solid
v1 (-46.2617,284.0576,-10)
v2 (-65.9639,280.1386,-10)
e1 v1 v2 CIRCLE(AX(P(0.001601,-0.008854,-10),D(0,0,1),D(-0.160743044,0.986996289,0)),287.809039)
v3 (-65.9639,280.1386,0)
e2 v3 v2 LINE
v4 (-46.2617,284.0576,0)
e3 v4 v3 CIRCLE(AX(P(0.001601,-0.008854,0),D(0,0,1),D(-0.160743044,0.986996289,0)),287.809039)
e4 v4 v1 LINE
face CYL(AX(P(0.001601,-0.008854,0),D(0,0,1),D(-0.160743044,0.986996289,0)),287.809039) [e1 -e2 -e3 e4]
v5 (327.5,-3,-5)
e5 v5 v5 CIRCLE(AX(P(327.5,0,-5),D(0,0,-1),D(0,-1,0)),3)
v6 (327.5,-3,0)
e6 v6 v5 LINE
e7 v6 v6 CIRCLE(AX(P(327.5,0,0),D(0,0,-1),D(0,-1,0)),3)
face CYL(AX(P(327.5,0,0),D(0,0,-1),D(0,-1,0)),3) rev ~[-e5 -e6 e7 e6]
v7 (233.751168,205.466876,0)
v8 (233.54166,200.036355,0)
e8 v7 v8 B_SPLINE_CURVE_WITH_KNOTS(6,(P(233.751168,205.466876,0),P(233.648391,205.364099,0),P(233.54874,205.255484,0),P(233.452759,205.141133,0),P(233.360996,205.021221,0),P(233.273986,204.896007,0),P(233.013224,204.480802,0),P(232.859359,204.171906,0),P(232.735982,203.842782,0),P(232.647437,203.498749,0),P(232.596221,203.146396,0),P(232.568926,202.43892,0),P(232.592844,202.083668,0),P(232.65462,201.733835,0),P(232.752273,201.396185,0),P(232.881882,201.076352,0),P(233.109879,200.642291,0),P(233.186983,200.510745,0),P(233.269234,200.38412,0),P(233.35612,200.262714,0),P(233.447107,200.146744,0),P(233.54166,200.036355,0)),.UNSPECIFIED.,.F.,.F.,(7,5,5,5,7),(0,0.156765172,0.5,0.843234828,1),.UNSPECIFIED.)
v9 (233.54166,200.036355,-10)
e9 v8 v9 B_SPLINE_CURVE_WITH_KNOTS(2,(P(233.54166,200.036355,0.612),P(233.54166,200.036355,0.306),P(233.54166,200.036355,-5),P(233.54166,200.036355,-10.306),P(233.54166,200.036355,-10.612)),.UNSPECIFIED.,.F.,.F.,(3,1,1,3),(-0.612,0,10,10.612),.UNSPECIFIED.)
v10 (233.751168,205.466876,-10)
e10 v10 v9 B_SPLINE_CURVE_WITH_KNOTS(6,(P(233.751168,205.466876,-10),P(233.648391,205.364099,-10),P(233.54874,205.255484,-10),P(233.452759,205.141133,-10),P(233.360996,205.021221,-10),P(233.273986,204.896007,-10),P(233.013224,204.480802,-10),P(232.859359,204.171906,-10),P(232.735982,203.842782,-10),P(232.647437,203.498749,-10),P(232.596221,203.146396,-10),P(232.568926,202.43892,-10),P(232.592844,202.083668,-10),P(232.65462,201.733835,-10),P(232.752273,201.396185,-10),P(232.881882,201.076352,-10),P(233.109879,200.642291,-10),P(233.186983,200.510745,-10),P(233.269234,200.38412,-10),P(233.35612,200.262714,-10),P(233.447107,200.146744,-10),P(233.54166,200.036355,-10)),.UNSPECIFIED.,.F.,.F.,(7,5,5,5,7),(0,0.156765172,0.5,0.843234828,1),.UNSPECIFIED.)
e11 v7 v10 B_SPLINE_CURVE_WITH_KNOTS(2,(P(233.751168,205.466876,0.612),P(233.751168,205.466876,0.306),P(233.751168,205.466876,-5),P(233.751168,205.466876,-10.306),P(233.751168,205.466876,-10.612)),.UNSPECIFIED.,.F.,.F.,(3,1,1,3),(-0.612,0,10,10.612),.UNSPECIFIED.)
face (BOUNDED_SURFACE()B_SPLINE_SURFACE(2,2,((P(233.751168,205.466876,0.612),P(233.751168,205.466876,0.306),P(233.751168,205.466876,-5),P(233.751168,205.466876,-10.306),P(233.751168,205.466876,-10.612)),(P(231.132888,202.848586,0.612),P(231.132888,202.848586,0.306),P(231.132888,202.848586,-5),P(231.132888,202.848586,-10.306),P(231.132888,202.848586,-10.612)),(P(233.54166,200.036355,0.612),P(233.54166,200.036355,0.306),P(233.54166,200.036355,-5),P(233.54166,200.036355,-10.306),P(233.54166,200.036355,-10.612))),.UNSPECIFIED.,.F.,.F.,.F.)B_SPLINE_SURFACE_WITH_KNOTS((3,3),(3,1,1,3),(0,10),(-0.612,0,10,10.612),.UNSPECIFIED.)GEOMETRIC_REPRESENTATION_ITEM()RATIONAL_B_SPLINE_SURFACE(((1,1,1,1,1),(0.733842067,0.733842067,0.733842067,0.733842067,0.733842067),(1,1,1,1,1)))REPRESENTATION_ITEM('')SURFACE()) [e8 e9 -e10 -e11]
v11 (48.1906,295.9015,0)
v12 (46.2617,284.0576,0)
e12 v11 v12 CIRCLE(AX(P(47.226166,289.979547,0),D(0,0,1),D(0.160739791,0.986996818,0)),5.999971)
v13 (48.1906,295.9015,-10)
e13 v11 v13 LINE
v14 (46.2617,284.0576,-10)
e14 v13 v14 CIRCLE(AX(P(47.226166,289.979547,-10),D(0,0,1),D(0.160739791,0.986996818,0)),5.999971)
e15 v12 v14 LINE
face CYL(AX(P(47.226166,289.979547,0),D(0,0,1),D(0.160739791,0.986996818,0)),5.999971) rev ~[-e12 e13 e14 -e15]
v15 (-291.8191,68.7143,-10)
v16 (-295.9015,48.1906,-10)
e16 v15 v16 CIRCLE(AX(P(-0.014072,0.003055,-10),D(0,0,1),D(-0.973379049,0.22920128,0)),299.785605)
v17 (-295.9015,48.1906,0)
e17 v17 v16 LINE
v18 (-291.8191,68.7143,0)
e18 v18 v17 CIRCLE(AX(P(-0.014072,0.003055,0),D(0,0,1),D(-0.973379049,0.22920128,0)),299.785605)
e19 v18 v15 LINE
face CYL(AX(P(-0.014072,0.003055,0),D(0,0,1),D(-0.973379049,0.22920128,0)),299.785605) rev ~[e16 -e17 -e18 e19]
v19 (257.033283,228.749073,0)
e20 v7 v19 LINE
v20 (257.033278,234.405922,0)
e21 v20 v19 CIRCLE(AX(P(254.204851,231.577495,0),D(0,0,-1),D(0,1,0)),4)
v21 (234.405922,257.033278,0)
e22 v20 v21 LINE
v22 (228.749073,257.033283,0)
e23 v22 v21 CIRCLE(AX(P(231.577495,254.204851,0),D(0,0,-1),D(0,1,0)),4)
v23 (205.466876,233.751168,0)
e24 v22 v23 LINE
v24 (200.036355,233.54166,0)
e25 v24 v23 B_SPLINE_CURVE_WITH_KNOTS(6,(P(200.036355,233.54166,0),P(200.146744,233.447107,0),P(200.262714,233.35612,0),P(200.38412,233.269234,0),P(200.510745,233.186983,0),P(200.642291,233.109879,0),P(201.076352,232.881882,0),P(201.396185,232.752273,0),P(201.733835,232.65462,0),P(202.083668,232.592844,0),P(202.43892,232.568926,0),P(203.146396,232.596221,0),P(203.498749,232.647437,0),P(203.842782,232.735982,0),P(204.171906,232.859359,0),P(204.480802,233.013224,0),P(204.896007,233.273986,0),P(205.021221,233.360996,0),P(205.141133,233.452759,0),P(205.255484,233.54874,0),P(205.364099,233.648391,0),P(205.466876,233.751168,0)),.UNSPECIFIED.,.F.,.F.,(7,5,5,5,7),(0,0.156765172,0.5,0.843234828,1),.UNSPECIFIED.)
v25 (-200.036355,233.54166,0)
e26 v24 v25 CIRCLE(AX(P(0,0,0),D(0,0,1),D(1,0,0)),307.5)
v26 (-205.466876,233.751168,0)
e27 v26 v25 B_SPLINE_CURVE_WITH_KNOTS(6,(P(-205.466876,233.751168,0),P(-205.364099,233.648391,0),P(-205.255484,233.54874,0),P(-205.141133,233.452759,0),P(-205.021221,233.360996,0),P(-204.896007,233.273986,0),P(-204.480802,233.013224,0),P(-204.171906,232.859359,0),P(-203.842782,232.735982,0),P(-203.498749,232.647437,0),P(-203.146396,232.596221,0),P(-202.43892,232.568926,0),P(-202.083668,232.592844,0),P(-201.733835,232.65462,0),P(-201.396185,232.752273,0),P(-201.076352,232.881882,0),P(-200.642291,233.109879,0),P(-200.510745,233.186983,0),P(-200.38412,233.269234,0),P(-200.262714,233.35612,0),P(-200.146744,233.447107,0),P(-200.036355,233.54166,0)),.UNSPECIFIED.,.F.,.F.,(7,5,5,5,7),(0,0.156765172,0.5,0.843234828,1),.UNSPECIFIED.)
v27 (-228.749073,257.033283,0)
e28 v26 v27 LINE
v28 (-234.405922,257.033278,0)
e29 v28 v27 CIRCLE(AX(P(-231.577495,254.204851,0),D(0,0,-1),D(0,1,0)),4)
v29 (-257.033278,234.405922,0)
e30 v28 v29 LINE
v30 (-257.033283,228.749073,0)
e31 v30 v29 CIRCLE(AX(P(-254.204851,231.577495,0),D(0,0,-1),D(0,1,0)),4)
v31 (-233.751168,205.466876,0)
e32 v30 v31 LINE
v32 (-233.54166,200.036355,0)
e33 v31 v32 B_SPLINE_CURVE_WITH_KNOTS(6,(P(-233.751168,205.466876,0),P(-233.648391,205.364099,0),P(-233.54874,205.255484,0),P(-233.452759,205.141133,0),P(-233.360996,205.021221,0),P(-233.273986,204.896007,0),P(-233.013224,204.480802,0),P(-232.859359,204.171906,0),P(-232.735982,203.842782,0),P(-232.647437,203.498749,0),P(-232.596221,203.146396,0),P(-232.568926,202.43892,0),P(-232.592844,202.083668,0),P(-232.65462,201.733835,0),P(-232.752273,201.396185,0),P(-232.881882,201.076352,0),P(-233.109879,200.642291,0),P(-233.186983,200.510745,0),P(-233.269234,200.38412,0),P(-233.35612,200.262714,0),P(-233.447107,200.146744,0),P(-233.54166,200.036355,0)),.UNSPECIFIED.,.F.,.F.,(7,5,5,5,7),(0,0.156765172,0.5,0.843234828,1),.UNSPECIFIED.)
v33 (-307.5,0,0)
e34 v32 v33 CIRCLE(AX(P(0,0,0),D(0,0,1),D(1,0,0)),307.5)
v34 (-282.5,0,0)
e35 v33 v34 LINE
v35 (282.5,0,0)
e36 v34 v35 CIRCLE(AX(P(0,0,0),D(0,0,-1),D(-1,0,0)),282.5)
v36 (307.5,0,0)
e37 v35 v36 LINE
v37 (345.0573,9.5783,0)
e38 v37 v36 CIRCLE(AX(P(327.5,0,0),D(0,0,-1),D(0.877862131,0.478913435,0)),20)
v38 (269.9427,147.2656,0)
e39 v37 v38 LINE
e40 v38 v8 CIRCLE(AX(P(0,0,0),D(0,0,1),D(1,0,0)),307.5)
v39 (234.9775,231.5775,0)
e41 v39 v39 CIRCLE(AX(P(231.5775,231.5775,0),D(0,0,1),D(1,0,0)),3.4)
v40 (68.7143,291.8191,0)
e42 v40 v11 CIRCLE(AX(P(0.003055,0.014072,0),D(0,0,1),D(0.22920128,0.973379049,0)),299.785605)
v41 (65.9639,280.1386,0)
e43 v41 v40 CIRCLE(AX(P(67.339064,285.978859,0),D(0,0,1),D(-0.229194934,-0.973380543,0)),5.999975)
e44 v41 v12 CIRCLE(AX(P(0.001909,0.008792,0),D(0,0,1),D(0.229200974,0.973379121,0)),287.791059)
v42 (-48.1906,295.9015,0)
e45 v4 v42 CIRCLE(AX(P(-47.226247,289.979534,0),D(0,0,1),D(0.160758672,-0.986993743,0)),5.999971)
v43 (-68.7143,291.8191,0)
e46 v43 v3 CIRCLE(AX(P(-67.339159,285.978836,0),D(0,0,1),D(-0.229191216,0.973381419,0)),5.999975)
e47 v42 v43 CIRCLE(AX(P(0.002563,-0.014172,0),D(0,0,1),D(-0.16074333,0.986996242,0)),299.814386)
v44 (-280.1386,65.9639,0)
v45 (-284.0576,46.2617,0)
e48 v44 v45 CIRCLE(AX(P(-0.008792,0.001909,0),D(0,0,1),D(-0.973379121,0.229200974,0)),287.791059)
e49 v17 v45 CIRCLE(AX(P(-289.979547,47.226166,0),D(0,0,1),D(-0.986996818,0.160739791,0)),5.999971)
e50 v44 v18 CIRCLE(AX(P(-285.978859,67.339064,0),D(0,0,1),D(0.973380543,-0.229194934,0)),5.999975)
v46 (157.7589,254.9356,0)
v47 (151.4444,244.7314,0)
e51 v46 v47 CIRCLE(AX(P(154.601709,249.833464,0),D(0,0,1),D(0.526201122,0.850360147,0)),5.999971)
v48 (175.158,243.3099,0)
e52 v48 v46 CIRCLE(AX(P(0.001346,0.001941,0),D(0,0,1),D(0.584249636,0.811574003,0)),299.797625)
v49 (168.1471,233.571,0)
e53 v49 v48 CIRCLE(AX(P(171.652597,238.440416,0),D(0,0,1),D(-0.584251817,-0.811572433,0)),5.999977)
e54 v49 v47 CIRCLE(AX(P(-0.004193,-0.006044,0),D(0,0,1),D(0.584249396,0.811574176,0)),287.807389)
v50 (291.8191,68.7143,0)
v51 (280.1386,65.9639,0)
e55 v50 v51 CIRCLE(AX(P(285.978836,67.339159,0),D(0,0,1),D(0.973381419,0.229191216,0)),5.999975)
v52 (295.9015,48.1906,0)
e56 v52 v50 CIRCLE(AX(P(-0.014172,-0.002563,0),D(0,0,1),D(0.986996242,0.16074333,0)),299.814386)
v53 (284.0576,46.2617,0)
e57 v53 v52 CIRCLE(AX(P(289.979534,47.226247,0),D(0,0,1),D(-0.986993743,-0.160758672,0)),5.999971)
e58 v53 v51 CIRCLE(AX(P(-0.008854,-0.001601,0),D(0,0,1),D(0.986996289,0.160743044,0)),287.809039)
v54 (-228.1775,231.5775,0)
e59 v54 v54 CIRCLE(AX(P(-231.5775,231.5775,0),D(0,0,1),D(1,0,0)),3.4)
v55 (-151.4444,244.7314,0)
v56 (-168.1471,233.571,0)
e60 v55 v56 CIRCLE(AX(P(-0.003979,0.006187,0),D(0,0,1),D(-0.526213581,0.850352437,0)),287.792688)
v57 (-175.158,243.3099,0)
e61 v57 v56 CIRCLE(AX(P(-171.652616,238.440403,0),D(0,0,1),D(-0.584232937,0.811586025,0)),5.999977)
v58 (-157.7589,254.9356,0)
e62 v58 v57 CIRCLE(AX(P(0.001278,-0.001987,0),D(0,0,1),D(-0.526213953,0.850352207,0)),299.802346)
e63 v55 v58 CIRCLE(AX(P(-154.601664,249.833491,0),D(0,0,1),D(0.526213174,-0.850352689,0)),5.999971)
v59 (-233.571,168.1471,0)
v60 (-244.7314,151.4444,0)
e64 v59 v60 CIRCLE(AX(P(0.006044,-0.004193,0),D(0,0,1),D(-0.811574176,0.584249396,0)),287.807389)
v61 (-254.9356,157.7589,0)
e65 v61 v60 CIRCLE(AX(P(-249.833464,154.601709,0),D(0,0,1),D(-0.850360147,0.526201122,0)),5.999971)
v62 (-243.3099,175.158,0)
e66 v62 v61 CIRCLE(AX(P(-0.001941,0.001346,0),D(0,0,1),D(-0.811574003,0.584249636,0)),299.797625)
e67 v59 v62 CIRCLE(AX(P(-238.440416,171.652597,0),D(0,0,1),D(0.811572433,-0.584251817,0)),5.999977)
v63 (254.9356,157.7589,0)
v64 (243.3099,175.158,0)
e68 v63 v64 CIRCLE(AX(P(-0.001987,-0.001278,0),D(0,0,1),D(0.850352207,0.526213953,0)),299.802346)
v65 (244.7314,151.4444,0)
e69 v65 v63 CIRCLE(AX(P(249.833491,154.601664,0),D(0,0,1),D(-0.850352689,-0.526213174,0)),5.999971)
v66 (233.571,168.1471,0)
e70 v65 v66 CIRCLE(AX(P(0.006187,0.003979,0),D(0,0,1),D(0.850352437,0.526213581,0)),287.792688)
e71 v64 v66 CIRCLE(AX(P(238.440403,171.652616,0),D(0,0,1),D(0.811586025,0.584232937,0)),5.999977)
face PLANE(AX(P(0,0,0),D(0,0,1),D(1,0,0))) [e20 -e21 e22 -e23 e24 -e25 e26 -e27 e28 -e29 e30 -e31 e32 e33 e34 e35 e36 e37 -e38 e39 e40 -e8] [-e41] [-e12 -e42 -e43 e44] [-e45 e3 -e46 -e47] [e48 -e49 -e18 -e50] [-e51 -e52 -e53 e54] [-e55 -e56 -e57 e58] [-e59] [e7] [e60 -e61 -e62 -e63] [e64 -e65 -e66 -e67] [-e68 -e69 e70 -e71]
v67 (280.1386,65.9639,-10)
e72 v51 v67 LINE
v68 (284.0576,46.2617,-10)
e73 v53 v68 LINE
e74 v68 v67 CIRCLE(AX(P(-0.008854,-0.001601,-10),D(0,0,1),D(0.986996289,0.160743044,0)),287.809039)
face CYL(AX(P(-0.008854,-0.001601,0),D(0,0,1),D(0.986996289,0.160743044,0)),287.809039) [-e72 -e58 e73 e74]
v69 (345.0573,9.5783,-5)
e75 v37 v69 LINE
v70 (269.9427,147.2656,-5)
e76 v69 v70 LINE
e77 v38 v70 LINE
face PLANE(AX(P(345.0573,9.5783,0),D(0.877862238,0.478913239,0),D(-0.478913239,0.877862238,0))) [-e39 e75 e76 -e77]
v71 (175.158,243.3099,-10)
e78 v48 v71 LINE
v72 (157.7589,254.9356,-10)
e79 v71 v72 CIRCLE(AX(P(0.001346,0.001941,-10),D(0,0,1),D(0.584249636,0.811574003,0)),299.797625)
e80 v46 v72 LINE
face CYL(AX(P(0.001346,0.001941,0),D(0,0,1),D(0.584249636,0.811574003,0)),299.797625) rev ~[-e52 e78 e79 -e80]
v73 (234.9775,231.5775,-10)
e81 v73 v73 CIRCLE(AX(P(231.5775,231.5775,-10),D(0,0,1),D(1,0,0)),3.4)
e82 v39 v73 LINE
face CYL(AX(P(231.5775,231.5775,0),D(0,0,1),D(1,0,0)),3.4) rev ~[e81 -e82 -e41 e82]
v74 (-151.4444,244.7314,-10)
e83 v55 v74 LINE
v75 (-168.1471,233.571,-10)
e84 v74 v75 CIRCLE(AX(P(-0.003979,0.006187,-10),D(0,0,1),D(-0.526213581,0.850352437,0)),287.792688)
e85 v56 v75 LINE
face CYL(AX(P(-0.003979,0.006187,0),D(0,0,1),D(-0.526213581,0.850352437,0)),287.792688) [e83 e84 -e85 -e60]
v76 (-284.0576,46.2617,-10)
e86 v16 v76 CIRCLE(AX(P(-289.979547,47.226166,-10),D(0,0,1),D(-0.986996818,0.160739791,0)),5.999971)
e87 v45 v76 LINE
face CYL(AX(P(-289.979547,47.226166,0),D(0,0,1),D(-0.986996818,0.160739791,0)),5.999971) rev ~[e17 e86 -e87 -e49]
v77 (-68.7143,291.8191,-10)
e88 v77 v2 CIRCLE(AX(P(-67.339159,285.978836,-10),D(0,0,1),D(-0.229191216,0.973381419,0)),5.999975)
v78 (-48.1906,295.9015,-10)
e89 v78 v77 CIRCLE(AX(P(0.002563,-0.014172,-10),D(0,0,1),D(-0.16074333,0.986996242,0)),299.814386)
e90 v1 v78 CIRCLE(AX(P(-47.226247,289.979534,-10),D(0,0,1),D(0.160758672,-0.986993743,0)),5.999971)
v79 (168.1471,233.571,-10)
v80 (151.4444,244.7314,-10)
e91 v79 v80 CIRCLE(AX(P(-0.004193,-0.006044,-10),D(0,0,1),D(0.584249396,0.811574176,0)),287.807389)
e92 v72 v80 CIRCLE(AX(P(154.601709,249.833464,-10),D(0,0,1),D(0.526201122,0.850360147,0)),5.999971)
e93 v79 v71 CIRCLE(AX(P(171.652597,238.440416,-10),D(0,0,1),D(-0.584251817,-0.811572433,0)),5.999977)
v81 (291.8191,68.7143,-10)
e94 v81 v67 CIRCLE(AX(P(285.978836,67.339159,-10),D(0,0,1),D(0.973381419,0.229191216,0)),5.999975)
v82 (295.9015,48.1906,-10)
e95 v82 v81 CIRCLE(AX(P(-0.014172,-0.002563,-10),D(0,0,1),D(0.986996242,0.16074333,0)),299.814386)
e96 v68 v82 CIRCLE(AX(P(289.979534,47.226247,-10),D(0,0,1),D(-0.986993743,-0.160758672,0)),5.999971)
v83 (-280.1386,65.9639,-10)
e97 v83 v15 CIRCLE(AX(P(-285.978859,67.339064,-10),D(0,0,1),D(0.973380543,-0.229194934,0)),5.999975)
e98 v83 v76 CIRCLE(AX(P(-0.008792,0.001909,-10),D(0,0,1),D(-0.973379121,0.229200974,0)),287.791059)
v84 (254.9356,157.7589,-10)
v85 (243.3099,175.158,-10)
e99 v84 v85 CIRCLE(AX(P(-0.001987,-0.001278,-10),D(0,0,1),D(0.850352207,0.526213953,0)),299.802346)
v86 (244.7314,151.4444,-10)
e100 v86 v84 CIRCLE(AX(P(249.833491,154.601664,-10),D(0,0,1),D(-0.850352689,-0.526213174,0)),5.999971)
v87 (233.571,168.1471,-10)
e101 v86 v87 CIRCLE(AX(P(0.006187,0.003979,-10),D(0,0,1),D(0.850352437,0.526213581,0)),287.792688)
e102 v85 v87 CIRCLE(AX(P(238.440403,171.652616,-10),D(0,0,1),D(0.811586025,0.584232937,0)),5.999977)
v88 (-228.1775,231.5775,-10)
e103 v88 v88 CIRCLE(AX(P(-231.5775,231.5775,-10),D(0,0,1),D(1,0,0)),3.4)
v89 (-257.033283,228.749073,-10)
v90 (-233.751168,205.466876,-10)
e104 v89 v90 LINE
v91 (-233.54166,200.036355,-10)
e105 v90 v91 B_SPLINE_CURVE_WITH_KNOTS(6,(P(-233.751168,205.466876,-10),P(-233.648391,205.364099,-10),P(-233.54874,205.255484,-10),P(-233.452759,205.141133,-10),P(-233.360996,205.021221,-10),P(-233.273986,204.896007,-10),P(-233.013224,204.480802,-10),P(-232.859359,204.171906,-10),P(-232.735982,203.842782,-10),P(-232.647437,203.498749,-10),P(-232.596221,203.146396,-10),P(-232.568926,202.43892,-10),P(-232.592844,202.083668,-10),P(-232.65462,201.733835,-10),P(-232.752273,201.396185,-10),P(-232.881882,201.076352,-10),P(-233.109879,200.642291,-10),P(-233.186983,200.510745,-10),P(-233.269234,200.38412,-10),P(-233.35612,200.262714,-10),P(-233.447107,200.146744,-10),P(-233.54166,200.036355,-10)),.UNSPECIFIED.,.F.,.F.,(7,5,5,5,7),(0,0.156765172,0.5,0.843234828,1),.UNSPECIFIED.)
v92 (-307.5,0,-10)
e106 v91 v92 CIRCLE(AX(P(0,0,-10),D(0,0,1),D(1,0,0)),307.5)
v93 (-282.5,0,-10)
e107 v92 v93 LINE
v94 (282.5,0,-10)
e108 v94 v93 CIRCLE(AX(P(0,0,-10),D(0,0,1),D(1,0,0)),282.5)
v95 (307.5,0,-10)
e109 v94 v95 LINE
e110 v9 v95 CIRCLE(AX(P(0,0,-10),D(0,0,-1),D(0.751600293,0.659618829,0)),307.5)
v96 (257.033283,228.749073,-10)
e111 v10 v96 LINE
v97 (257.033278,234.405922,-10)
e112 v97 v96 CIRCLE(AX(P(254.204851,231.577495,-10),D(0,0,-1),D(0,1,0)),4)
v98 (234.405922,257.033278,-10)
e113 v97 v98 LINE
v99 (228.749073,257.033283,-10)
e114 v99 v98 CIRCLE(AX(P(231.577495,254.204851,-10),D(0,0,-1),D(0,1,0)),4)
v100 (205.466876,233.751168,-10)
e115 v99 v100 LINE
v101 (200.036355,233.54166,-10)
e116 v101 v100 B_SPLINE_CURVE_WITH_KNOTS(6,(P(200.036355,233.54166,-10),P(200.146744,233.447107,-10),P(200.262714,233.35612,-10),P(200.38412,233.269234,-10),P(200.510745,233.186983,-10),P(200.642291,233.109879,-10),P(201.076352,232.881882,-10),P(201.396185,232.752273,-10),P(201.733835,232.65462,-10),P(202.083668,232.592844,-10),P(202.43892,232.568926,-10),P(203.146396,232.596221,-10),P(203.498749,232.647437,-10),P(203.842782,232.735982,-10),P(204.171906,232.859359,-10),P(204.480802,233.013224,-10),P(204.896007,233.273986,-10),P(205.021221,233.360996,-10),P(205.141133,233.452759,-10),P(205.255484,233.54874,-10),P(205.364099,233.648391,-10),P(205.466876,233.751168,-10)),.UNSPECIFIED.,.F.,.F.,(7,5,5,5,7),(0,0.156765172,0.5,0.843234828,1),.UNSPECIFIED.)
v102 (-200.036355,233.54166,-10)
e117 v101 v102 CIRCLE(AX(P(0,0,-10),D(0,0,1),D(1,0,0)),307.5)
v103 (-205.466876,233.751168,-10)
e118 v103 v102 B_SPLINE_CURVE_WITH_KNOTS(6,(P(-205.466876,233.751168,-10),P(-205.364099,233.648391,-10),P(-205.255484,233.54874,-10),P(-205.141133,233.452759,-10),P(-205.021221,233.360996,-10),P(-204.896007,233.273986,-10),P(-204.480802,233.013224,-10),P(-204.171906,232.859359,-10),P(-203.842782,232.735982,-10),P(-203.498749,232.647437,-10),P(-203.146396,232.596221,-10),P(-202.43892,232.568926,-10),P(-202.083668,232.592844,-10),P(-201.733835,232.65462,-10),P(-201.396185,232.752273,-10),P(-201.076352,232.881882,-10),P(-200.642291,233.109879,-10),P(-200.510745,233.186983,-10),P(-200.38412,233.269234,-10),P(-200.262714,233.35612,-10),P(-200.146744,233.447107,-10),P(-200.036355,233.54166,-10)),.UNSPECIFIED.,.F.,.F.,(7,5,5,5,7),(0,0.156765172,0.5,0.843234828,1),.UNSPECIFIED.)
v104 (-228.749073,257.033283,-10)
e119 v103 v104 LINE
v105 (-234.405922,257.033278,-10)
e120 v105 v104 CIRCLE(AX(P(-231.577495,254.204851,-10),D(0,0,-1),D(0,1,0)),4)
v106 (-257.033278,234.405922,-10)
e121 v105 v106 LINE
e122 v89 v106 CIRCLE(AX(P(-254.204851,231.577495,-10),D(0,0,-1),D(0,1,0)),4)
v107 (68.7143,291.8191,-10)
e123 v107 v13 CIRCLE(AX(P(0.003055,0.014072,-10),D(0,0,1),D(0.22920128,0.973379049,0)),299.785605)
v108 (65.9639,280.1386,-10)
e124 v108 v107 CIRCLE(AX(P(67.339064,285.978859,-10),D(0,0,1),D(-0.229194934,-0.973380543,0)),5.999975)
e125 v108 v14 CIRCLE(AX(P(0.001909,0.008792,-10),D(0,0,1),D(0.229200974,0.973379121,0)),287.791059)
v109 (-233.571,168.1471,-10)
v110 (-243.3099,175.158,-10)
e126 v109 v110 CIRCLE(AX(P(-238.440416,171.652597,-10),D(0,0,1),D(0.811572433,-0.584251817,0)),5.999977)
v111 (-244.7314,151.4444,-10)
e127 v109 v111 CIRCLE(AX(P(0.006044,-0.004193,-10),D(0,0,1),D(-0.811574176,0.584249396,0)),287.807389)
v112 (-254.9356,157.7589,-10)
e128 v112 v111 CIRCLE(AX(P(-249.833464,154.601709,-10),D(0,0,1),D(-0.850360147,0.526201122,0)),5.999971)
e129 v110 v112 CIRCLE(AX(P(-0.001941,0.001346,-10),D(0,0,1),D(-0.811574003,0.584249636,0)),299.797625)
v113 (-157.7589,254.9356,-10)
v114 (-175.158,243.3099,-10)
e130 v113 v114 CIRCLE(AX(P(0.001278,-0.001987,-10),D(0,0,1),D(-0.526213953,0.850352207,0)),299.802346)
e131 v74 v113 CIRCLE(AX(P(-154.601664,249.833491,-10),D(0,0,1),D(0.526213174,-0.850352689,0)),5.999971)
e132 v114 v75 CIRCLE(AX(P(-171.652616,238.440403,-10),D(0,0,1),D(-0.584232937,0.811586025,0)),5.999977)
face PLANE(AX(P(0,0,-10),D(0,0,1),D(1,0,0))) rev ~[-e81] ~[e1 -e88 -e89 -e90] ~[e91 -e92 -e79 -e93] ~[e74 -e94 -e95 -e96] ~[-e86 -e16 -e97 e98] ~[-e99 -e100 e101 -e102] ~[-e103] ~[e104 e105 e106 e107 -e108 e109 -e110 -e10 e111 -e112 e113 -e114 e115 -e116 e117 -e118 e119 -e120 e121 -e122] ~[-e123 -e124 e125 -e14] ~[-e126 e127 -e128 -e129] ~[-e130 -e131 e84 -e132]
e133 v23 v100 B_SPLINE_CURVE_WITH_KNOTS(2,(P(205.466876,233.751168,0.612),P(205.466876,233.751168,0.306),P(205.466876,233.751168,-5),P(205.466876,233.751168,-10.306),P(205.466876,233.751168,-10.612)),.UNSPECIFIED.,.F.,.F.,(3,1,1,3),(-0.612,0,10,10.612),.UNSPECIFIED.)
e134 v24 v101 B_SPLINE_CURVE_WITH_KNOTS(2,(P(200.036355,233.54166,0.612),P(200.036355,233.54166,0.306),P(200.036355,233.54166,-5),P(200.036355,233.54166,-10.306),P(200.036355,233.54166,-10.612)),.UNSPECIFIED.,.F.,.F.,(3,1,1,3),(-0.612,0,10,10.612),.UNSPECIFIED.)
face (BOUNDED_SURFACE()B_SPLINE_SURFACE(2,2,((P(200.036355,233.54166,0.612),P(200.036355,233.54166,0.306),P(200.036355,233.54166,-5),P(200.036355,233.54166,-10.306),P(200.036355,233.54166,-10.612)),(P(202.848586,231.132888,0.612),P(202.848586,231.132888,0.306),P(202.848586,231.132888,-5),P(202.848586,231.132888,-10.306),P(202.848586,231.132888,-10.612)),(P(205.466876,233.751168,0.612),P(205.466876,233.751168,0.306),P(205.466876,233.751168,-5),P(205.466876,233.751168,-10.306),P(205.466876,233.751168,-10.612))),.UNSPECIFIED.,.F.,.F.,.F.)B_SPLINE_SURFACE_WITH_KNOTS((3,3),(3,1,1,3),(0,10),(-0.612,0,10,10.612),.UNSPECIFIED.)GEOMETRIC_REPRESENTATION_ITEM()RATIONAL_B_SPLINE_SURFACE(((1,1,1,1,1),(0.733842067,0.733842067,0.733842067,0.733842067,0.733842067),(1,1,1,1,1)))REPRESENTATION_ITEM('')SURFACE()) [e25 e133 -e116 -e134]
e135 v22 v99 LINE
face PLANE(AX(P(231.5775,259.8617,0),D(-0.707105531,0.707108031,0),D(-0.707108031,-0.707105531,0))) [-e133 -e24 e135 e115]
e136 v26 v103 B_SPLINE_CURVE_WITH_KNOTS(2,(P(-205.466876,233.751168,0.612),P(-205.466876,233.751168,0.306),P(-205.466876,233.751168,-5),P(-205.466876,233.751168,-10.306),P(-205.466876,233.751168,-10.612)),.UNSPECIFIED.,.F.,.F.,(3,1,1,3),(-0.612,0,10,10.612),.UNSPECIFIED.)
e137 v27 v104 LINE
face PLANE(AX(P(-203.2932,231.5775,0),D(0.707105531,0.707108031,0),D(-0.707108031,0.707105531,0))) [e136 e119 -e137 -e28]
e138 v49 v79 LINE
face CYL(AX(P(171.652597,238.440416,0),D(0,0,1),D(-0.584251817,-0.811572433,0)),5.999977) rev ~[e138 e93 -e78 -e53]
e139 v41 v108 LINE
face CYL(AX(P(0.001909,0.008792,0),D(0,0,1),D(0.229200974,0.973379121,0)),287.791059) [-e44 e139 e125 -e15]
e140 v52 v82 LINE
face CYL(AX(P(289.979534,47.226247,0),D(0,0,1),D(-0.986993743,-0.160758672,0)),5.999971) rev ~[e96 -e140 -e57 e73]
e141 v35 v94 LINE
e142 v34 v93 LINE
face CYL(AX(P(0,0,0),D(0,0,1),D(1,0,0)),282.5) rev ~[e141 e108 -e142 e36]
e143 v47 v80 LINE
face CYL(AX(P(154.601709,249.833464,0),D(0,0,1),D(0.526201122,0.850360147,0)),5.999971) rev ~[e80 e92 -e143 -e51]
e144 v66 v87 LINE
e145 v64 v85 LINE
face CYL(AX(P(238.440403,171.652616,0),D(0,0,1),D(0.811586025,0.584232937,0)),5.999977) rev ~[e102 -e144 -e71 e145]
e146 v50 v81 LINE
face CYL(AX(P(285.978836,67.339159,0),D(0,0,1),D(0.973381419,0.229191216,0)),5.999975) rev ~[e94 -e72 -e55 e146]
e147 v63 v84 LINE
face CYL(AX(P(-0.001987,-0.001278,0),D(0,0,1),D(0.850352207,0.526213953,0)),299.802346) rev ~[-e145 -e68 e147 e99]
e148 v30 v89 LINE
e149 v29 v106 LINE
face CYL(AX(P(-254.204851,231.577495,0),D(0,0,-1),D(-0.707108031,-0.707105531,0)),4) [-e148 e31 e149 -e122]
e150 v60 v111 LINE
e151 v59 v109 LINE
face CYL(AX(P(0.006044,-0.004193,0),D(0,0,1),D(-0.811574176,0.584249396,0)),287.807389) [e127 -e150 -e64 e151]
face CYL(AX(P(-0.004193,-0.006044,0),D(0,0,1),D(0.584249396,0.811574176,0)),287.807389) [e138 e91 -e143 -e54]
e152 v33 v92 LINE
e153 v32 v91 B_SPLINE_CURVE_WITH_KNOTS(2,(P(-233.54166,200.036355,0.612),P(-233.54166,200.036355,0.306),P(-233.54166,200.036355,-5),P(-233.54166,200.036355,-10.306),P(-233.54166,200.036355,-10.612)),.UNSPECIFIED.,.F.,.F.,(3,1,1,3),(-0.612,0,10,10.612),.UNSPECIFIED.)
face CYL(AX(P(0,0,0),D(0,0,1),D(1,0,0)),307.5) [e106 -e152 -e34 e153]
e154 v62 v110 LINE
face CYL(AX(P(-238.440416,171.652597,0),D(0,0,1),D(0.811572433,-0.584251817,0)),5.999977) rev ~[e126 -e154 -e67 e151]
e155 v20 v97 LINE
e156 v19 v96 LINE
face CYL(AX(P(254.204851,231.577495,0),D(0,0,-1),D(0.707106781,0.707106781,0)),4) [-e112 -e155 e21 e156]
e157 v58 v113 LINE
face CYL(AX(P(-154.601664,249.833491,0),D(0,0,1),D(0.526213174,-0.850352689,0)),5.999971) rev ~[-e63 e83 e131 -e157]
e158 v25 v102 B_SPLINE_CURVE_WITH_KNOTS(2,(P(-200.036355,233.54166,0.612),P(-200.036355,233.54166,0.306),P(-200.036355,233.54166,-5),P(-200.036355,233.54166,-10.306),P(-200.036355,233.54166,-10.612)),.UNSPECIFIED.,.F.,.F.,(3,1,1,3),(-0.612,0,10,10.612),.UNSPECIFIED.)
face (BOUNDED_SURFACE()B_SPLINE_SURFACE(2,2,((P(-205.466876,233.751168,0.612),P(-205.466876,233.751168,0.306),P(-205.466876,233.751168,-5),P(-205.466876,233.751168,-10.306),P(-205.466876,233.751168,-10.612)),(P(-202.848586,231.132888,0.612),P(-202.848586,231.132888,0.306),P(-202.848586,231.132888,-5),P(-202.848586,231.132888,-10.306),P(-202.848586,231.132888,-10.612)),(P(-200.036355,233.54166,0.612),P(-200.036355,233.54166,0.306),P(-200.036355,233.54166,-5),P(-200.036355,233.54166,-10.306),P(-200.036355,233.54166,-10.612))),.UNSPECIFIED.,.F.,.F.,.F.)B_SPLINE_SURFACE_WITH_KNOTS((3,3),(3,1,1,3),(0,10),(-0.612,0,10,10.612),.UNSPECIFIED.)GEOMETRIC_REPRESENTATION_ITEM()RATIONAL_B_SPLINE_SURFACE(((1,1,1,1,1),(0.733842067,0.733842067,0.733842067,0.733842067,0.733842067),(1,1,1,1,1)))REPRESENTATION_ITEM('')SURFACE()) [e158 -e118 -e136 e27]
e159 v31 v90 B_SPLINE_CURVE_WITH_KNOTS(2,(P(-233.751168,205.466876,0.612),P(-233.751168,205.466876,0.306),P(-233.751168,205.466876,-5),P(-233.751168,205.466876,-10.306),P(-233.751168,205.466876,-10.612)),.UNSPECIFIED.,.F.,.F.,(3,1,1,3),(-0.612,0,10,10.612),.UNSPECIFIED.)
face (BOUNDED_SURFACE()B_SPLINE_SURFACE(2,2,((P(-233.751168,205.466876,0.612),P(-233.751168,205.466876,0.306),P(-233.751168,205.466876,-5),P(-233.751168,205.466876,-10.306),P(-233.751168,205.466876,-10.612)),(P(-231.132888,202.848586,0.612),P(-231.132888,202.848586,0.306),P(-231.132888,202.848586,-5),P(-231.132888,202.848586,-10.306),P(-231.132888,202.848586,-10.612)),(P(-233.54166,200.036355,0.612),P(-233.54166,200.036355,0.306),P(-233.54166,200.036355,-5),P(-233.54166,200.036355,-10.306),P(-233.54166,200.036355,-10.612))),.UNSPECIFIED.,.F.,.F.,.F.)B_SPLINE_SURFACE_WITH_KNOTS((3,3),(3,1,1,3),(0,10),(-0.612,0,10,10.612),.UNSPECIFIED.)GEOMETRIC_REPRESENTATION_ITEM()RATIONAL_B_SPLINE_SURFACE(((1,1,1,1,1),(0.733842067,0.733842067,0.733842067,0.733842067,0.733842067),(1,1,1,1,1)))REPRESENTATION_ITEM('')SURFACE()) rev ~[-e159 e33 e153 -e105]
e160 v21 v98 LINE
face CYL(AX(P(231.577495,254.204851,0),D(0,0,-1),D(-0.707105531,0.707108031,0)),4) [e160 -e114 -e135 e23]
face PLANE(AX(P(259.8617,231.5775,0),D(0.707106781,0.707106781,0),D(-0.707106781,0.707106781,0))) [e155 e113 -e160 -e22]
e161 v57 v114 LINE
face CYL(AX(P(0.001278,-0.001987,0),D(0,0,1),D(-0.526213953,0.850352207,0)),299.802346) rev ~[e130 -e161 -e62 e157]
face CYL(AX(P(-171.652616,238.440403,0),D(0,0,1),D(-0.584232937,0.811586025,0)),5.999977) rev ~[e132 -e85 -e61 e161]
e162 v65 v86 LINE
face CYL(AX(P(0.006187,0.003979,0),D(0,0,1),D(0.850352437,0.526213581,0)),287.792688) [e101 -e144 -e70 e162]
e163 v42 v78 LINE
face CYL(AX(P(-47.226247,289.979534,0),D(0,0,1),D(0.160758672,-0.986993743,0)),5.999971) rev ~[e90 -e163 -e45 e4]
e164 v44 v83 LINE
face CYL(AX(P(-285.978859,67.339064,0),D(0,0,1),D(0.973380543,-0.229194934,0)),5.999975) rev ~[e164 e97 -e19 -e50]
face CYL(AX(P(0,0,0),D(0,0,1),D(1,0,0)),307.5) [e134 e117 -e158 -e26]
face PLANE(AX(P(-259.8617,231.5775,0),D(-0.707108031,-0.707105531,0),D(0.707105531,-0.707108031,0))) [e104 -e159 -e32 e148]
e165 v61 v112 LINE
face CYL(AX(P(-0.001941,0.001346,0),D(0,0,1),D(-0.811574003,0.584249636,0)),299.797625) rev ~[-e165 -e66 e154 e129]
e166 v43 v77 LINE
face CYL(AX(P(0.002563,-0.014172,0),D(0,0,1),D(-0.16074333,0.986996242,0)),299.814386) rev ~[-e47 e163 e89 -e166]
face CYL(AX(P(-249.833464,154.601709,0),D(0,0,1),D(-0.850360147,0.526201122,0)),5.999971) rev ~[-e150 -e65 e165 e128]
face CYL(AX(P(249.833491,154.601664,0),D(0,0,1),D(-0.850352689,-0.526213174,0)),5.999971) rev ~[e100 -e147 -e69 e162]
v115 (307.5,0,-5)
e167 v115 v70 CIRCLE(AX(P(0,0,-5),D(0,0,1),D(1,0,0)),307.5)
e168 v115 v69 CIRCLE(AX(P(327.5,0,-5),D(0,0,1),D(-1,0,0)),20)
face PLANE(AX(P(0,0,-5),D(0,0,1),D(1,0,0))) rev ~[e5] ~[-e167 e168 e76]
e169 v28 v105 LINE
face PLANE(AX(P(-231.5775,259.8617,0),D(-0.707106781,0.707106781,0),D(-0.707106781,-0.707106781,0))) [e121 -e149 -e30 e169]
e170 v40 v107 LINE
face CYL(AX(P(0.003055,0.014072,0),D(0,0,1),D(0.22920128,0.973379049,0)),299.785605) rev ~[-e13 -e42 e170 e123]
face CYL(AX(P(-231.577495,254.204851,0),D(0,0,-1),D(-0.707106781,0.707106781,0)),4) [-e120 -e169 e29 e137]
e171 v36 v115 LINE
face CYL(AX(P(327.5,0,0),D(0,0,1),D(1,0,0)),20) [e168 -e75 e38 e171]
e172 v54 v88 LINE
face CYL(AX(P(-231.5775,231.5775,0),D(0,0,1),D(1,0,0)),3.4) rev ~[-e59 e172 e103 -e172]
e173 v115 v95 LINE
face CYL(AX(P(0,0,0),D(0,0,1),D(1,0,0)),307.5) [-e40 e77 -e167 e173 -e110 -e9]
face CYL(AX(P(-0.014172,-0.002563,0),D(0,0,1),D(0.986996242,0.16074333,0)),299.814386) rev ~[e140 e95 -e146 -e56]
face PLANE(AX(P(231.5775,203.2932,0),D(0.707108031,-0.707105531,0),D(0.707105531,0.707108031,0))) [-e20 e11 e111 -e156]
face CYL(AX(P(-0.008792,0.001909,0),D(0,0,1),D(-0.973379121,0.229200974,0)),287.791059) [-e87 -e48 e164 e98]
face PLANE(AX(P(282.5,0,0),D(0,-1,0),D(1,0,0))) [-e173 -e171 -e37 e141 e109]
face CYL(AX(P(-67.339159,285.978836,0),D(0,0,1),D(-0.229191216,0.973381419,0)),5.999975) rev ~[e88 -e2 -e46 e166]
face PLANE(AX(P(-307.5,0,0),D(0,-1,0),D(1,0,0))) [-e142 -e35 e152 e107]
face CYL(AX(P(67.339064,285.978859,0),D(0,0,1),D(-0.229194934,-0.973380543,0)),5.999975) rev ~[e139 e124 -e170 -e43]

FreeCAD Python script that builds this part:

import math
import FreeCAD as App
import Part
import Sketcher
from FreeCAD import Vector


def edges_at(feature, points):
    """Names of the edges that pass closest to the given points."""
    edges = feature.Shape.Edges
    near = lambda p: min(range(len(edges)), key=lambda i: edges[i].distToShape(Part.Vertex(*p))[0])
    return sorted({f"Edge{near(p) + 1}" for p in points})

doc = App.newDocument("Part")
body = doc.addObject("PartDesign::Body", "Body")

# Sketch on XY plane
sketch1 = doc.addObject("Sketcher::SketchObject", "Sketch")
body.addObject(sketch1)
sketch1.AttachmentSupport = (doc.XY_Plane, [""])
sketch1.MapMode = "FlatFace"
sketch1.addGeometry(Part.LineSegment(Vector(-259.8617, 231.5775, 0), Vector(-231.5775, 203.2932, 0)), False)
sketch1.addGeometry(Part.LineSegment(Vector(-231.5775, 203.2932, 0), Vector(-231.11709, 202.83279, 0)), False)
sketch1.addGeometry(Part.ArcOfCircle(Part.Circle(Vector(0, 0, 0), Vector(0, 0, 1), 307.5), math.radians(138.729191), math.radians(180)), False)
sketch1.addGeometry(Part.LineSegment(Vector(-307.5, 0, 0), Vector(-282.5, 0, 0)), False)
sketch1.addGeometry(Part.ArcOfCircle(Part.Circle(Vector(0, 0, 0), Vector(0, 0, 1), 282.5), math.radians(0), math.radians(180)), False)
sketch1.addGeometry(Part.LineSegment(Vector(282.5, 0, 0), Vector(307.5, 0, 0)), False)
sketch1.addGeometry(Part.ArcOfCircle(Part.Circle(Vector(0, 0, 0), Vector(0, 0, 1), 307.5), math.radians(0), math.radians(41.270809)), False)
sketch1.addGeometry(Part.LineSegment(Vector(231.11709, 202.83279, 0), Vector(231.5775, 203.2932, 0)), False)
sketch1.addGeometry(Part.LineSegment(Vector(231.5775, 203.2932, 0), Vector(259.8617, 231.5775, 0)), False)
sketch1.addGeometry(Part.LineSegment(Vector(259.8617, 231.5775, 0), Vector(231.5775, 259.8617, 0)), False)
sketch1.addGeometry(Part.LineSegment(Vector(231.5775, 259.8617, 0), Vector(203.2932, 231.5775, 0)), False)
sketch1.addGeometry(Part.LineSegment(Vector(203.2932, 231.5775, 0), Vector(202.83279, 231.11709, 0)), False)
sketch1.addGeometry(Part.ArcOfCircle(Part.Circle(Vector(0, 0, 0), Vector(0, 0, 1), 307.5), math.radians(48.729191), math.radians(131.270809)), False)
sketch1.addGeometry(Part.LineSegment(Vector(-202.83279, 231.11709, 0), Vector(-203.2932, 231.5775, 0)), False)
sketch1.addGeometry(Part.LineSegment(Vector(-203.2932, 231.5775, 0), Vector(-231.5775, 259.8617, 0)), False)
sketch1.addGeometry(Part.LineSegment(Vector(-231.5775, 259.8617, 0), Vector(-259.8617, 231.5775, 0)), False)
sketch1.addGeometry(Part.Circle(Vector(-231.5775, 231.5775, 0), Vector(0, 0, 1), 3.4), False)
sketch1.addGeometry(Part.ArcOfCircle(Part.Circle(Vector(-238.4404, 171.6526, 0), Vector(0, 0, 1), 5.999966), math.radians(-35.75026), math.radians(144.251072)), False)
sketch1.addGeometry(Part.ArcOfCircle(Part.Circle(Vector(0.006044, -0.004193, 0), Vector(0, 0, 1), 287.807389), math.radians(144.250019), math.radians(148.249921)), False)
sketch1.addGeometry(Part.ArcOfCircle(Part.Circle(Vector(-249.8335, 154.6017, 0), Vector(0, 0, 1), 5.999945), math.radians(148.250611), math.radians(328.249799)), False)
sketch1.addGeometry(Part.ArcOfCircle(Part.Circle(Vector(-0.001941, 0.001346, 0), Vector(0, 0, 1), 299.797625), math.radians(144.250002), math.radians(148.25003)), False)
sketch1.addGeometry(Part.ArcOfCircle(Part.Circle(Vector(-0.014072, 0.003055, 0), Vector(0, 0, 1), 299.785605), math.radians(166.749948), math.radians(170.750148)), False)
sketch1.addGeometry(Part.ArcOfCircle(Part.Circle(Vector(-285.9788, 67.3391, 0), Vector(0, 0, 1), 5.999926), math.radians(-13.250144), math.radians(166.750075)), False)
sketch1.addGeometry(Part.ArcOfCircle(Part.Circle(Vector(-0.008792, 0.001909, 0), Vector(0, 0, 1), 287.791059), math.radians(166.749966), math.radians(170.750097)), False)
sketch1.addGeometry(Part.ArcOfCircle(Part.Circle(Vector(-289.9795, 47.2262, 0), Vector(0, 0, 1), 6.000013), math.radians(170.750556), math.radians(350.74946)), False)
sketch1.addGeometry(Part.ArcOfCircle(Part.Circle(Vector(171.6526, 238.4404, 0), Vector(0, 0, 1), 5.999966), math.radians(-125.75026), math.radians(54.251072)), False)
sketch1.addGeometry(Part.ArcOfCircle(Part.Circle(Vector(-0.004193, -0.006044, 0), Vector(0, 0, 1), 287.807389), math.radians(54.250019), math.radians(58.249921)), False)
sketch1.addGeometry(Part.ArcOfCircle(Part.Circle(Vector(154.6017, 249.8335, 0), Vector(0, 0, 1), 5.999945), math.radians(58.250611), math.radians(238.249799)), False)
sketch1.addGeometry(Part.ArcOfCircle(Part.Circle(Vector(0.001346, 0.001941, 0), Vector(0, 0, 1), 299.797625), math.radians(54.250002), math.radians(58.25003)), False)
sketch1.addGeometry(Part.ArcOfCircle(Part.Circle(Vector(0.001278, -0.001987, 0), Vector(0, 0, 1), 299.802346), math.radians(121.750002), math.radians(125.749966)), False)
sketch1.addGeometry(Part.ArcOfCircle(Part.Circle(Vector(-154.6017, 249.8335, 0), Vector(0, 0, 1), 5.999997), math.radians(-58.249799), math.radians(121.749389)), False)
sketch1.addGeometry(Part.ArcOfCircle(Part.Circle(Vector(-0.003979, 0.006187, 0), Vector(0, 0, 1), 287.792688), math.radians(121.749977), math.radians(125.750083)), False)
sketch1.addGeometry(Part.ArcOfCircle(Part.Circle(Vector(-171.6526, 238.4404, 0), Vector(0, 0, 1), 5.999988), math.radians(125.748928), math.radians(305.75026)), False)
sketch1.addGeometry(Part.ArcOfCircle(Part.Circle(Vector(0.002563, -0.014172, 0), Vector(0, 0, 1), 299.814386), math.radians(99.250044), math.radians(103.24986)), False)
sketch1.addGeometry(Part.ArcOfCircle(Part.Circle(Vector(-47.2262, 289.9795, 0), Vector(0, 0, 1), 5.99993), math.radians(-80.74946), math.radians(99.249444)), False)
sketch1.addGeometry(Part.ArcOfCircle(Part.Circle(Vector(0.001601, -0.008854, 0), Vector(0, 0, 1), 287.809039), math.radians(99.250028), math.radians(103.249909)), False)
sketch1.addGeometry(Part.ArcOfCircle(Part.Circle(Vector(-67.3391, 285.9788, 0), Vector(0, 0, 1), 6.000023), math.radians(103.249925), math.radians(283.250144)), False)
sketch1.addGeometry(Part.ArcOfCircle(Part.Circle(Vector(0.003055, 0.014072, 0), Vector(0, 0, 1), 299.785605), math.radians(76.749948), math.radians(80.750148)), False)
sketch1.addGeometry(Part.ArcOfCircle(Part.Circle(Vector(67.3391, 285.9788, 0), Vector(0, 0, 1), 5.999926), math.radians(-103.250144), math.radians(76.750075)), False)
sketch1.addGeometry(Part.ArcOfCircle(Part.Circle(Vector(0.001909, 0.008792, 0), Vector(0, 0, 1), 287.791059), math.radians(76.749966), math.radians(80.750097)), False)
sketch1.addGeometry(Part.ArcOfCircle(Part.Circle(Vector(47.2262, 289.9795, 0), Vector(0, 0, 1), 6.000013), math.radians(80.750556), math.radians(260.74946)), False)
sketch1.addGeometry(Part.ArcOfCircle(Part.Circle(Vector(249.8335, 154.6017, 0), Vector(0, 0, 1), 5.999997), math.radians(-148.249799), math.radians(31.749389)), False)
sketch1.addGeometry(Part.ArcOfCircle(Part.Circle(Vector(0.006187, 0.003979, 0), Vector(0, 0, 1), 287.792688), math.radians(31.749977), math.radians(35.750083)), False)
sketch1.addGeometry(Part.ArcOfCircle(Part.Circle(Vector(238.4404, 171.6526, 0), Vector(0, 0, 1), 5.999988), math.radians(35.748928), math.radians(215.75026)), False)
sketch1.addGeometry(Part.ArcOfCircle(Part.Circle(Vector(-0.001987, -0.001278, 0), Vector(0, 0, 1), 299.802346), math.radians(31.750002), math.radians(35.749966)), False)
sketch1.addGeometry(Part.ArcOfCircle(Part.Circle(Vector(-0.014172, -0.002563, 0), Vector(0, 0, 1), 299.814386), math.radians(9.250044), math.radians(13.24986)), False)
sketch1.addGeometry(Part.ArcOfCircle(Part.Circle(Vector(289.9795, 47.2262, 0), Vector(0, 0, 1), 5.99993), math.radians(-170.74946), math.radians(9.249444)), False)
sketch1.addGeometry(Part.ArcOfCircle(Part.Circle(Vector(-0.008854, -0.001601, 0), Vector(0, 0, 1), 287.809039), math.radians(9.250028), math.radians(13.249909)), False)
sketch1.addGeometry(Part.ArcOfCircle(Part.Circle(Vector(285.9788, 67.3391, 0), Vector(0, 0, 1), 6.000023), math.radians(13.249925), math.radians(193.250144)), False)
sketch1.addGeometry(Part.Circle(Vector(231.5775, 231.5775, 0), Vector(0, 0, 1), 3.4), False)
sketch1.addConstraint(Sketcher.Constraint("Coincident", 0, 2, 1, 1))
sketch1.addConstraint(Sketcher.Constraint("Coincident", 1, 2, 2, 1))
sketch1.addConstraint(Sketcher.Constraint("Coincident", 2, 2, 3, 1))
sketch1.addConstraint(Sketcher.Constraint("Coincident", 3, 2, 4, 2))
sketch1.addConstraint(Sketcher.Constraint("Coincident", 4, 1, 5, 1))
sketch1.addConstraint(Sketcher.Constraint("Coincident", 5, 2, 6, 1))
sketch1.addConstraint(Sketcher.Constraint("Coincident", 6, 2, 7, 1))
sketch1.addConstraint(Sketcher.Constraint("Coincident", 7, 2, 8, 1))
sketch1.addConstraint(Sketcher.Constraint("Coincident", 8, 2, 9, 1))
sketch1.addConstraint(Sketcher.Constraint("Coincident", 9, 2, 10, 1))
sketch1.addConstraint(Sketcher.Constraint("Coincident", 10, 2, 11, 1))
sketch1.addConstraint(Sketcher.Constraint("Coincident", 11, 2, 12, 1))
sketch1.addConstraint(Sketcher.Constraint("Coincident", 12, 2, 13, 1))
sketch1.addConstraint(Sketcher.Constraint("Coincident", 13, 2, 14, 1))
sketch1.addConstraint(Sketcher.Constraint("Coincident", 14, 2, 15, 1))
sketch1.addConstraint(Sketcher.Constraint("Coincident", 15, 2, 0, 1))
sketch1.addConstraint(Sketcher.Constraint("Tangent", 17, 1, 18, 1))
sketch1.addConstraint(Sketcher.Constraint("Tangent", 18, 2, 19, 2))
sketch1.addConstraint(Sketcher.Constraint("Tangent", 19, 1, 20, 2))
sketch1.addConstraint(Sketcher.Constraint("Tangent", 20, 1, 17, 2))
sketch1.addConstraint(Sketcher.Constraint("Tangent", 21, 1, 22, 2))
sketch1.addConstraint(Sketcher.Constraint("Tangent", 22, 1, 23, 1))
sketch1.addConstraint(Sketcher.Constraint("Tangent", 23, 2, 24, 2))
sketch1.addConstraint(Sketcher.Constraint("Tangent", 24, 1, 21, 2))
sketch1.addConstraint(Sketcher.Constraint("Tangent", 25, 1, 26, 1))
sketch1.addConstraint(Sketcher.Constraint("Tangent", 26, 2, 27, 2))
sketch1.addConstraint(Sketcher.Constraint("Tangent", 27, 1, 28, 2))
sketch1.addConstraint(Sketcher.Constraint("Tangent", 28, 1, 25, 2))
sketch1.addConstraint(Sketcher.Constraint("Tangent", 29, 1, 30, 2))
sketch1.addConstraint(Sketcher.Constraint("Tangent", 30, 1, 31, 1))
sketch1.addConstraint(Sketcher.Constraint("Tangent", 31, 2, 32, 2))
sketch1.addConstraint(Sketcher.Constraint("Tangent", 32, 1, 29, 2))
sketch1.addConstraint(Sketcher.Constraint("Tangent", 33, 1, 34, 2))
sketch1.addConstraint(Sketcher.Constraint("Tangent", 34, 1, 35, 1))
sketch1.addConstraint(Sketcher.Constraint("Tangent", 35, 2, 36, 2))
sketch1.addConstraint(Sketcher.Constraint("Tangent", 36, 1, 33, 2))
sketch1.addConstraint(Sketcher.Constraint("Tangent", 37, 1, 38, 2))
sketch1.addConstraint(Sketcher.Constraint("Tangent", 38, 1, 39, 1))
sketch1.addConstraint(Sketcher.Constraint("Tangent", 39, 2, 40, 2))
sketch1.addConstraint(Sketcher.Constraint("Tangent", 40, 1, 37, 2))
sketch1.addConstraint(Sketcher.Constraint("Tangent", 41, 1, 42, 1))
sketch1.addConstraint(Sketcher.Constraint("Tangent", 42, 2, 43, 2))
sketch1.addConstraint(Sketcher.Constraint("Tangent", 43, 1, 44, 2))
sketch1.addConstraint(Sketcher.Constraint("Tangent", 44, 1, 41, 2))
sketch1.addConstraint(Sketcher.Constraint("Tangent", 45, 1, 46, 2))
sketch1.addConstraint(Sketcher.Constraint("Tangent", 46, 1, 47, 1))
sketch1.addConstraint(Sketcher.Constraint("Tangent", 47, 2, 48, 2))
sketch1.addConstraint(Sketcher.Constraint("Tangent", 48, 1, 45, 2))
sketch1.addConstraint(Sketcher.Constraint("Horizontal", 3))
sketch1.addConstraint(Sketcher.Constraint("Horizontal", 5))
sketch1.addConstraint(Sketcher.Constraint("Coincident", 2, 3, -1, 1))
sketch1.addConstraint(Sketcher.Constraint("Coincident", 4, 3, -1, 1))
sketch1.addConstraint(Sketcher.Constraint("Coincident", 6, 3, -1, 1))
sketch1.addConstraint(Sketcher.Constraint("Coincident", 12, 3, -1, 1))
sketch1.addConstraint(Sketcher.Constraint("Equal", 2, 6))
sketch1.addConstraint(Sketcher.Constraint("Equal", 6, 12))
sketch1.addConstraint(Sketcher.Constraint("Equal", 17, 19))
sketch1.addConstraint(Sketcher.Constraint("Equal", 19, 22))
sketch1.addConstraint(Sketcher.Constraint("Equal", 22, 24))
sketch1.addConstraint(Sketcher.Constraint("Equal", 24, 25))
sketch1.addConstraint(Sketcher.Constraint("Equal", 18, 26))
sketch1.addConstraint(Sketcher.Constraint("Equal", 25, 27))
sketch1.addConstraint(Sketcher.Constraint("Equal", 20, 28))
sketch1.addConstraint(Sketcher.Constraint("Equal", 27, 30))
sketch1.addConstraint(Sketcher.Constraint("Equal", 30, 32))
sketch1.addConstraint(Sketcher.Constraint("Equal", 32, 34))
sketch1.addConstraint(Sketcher.Constraint("Equal", 34, 36))
sketch1.addConstraint(Sketcher.Constraint("Equal", 21, 37))
sketch1.addConstraint(Sketcher.Constraint("Equal", 36, 38))
sketch1.addConstraint(Sketcher.Constraint("Equal", 23, 39))
sketch1.addConstraint(Sketcher.Constraint("Equal", 38, 40))
sketch1.addConstraint(Sketcher.Constraint("Equal", 40, 41))
sketch1.addConstraint(Sketcher.Constraint("Equal", 31, 42))
sketch1.addConstraint(Sketcher.Constraint("Equal", 41, 43))
sketch1.addConstraint(Sketcher.Constraint("Equal", 29, 44))
sketch1.addConstraint(Sketcher.Constraint("Equal", 33, 45))
sketch1.addConstraint(Sketcher.Constraint("Equal", 43, 46))
sketch1.addConstraint(Sketcher.Constraint("Equal", 35, 47))
sketch1.addConstraint(Sketcher.Constraint("Equal", 46, 48))
sketch1.addConstraint(Sketcher.Constraint("Equal", 16, 49))
sketch1.addConstraint(Sketcher.Constraint("Symmetric", 27, 3, 30, 3, -2))
sketch1.addConstraint(Sketcher.Constraint("Symmetric", 25, 3, 32, 3, -2))
sketch1.addConstraint(Sketcher.Constraint("Symmetric", 36, 3, 38, 3, -2))
sketch1.addConstraint(Sketcher.Constraint("Symmetric", 34, 3, 40, 3, -2))
sketch1.addConstraint(Sketcher.Constraint("Symmetric", 19, 3, 41, 3, -2))
sketch1.addConstraint(Sketcher.Constraint("Symmetric", 17, 3, 43, 3, -2))
sketch1.addConstraint(Sketcher.Constraint("Symmetric", 24, 3, 46, 3, -2))
sketch1.addConstraint(Sketcher.Constraint("Symmetric", 22, 3, 48, 3, -2))
sketch1.addConstraint(Sketcher.Constraint("Symmetric", 16, 3, 49, 3, -2))
sketch1.addConstraint(Sketcher.Constraint("Symmetric", 0, 2, 7, 2, -2))
sketch1.addConstraint(Sketcher.Constraint("Symmetric", 10, 2, 13, 2, -2))
sketch1.addConstraint(Sketcher.Constraint("Symmetric", 9, 2, 14, 2, -2))
sketch1.addConstraint(Sketcher.Constraint("Symmetric", 8, 2, 15, 2, -2))
sketch1.addConstraint(Sketcher.Constraint("Symmetric", 28, 3, 29, 3, -1))
sketch1.addConstraint(Sketcher.Constraint("Symmetric", 35, 3, 39, 3, -1))
sketch1.addConstraint(Sketcher.Constraint("Symmetric", 18, 3, 42, 3, -1))
sketch1.addConstraint(Sketcher.Constraint("Symmetric", 23, 3, 47, 3, -1))
sketch1.addConstraint(Sketcher.Constraint("PointOnObject", 2, 2, -1))
sketch1.addConstraint(Sketcher.Constraint("PointOnObject", 4, 1, -1))
sketch1.addConstraint(Sketcher.Constraint("Parallel", 0, 1))
sketch1.addConstraint(Sketcher.Constraint("Perpendicular", 1, 7))
sketch1.addConstraint(Sketcher.Constraint("Parallel", 7, 8))
sketch1.addConstraint(Sketcher.Constraint("Perpendicular", 8, 9))
sketch1.addConstraint(Sketcher.Constraint("Perpendicular", 9, 10))
sketch1.addConstraint(Sketcher.Constraint("Parallel", 10, 11))
sketch1.addConstraint(Sketcher.Constraint("Perpendicular", 11, 13))
sketch1.addConstraint(Sketcher.Constraint("Horizontal", 23, 3, 28, 3))
sketch1.addConstraint(Sketcher.Constraint("Horizontal", 49, 3, 8, 2))
sketch1.addConstraint(Sketcher.Constraint("Horizontal", 8, 2, 10, 2))
sketch1.addConstraint(Sketcher.Constraint("Vertical", 20, 3, 44, 3))
sketch1.addConstraint(Sketcher.Constraint("Vertical", 21, 3, 45, 3))
sketch1.addConstraint(Sketcher.Constraint("Vertical", 16, 3, 0, 2))
sketch1.addConstraint(Sketcher.Constraint("Vertical", 7, 2, 9, 2))
sketch1.addConstraint(Sketcher.Constraint("Equal", 7, 11))
sketch1.addConstraint(Sketcher.Constraint("Radius", 17, 6.0))
sketch1.addConstraint(Sketcher.Constraint("Diameter", 16, 6.8))
sketch1.addConstraint(Sketcher.Constraint("Radius", 2, 307.5))
sketch1.addConstraint(Sketcher.Constraint("Radius", 4, 282.5))
sketch1.addConstraint(Sketcher.Constraint("Distance", 0, 40.0))
sketch1.addConstraint(Sketcher.Constraint("Radius", 23, 287.791))
sketch1.addConstraint(Sketcher.Constraint("Radius", 35, 287.809))
sketch1.addConstraint(Sketcher.Constraint("DistanceX", 16, 3, -1, 1, 231.5775))
sketch1.addConstraint(Sketcher.Constraint("Radius", 18, 287.8074))
sketch1.addConstraint(Sketcher.Constraint("Radius", 20, 299.7976))
sketch1.addConstraint(Sketcher.Constraint("Radius", 21, 299.7856))
sketch1.addConstraint(Sketcher.Constraint("DistanceX", 20, 1, -1, 1, 243.31))
sketch1.addConstraint(Sketcher.Constraint("DistanceY", -1, 1, 28, 1, 243.31))
sketch1.addConstraint(Sketcher.Constraint("DistanceY", -1, 1, 22, 3, 67.339))
sketch1.addConstraint(Sketcher.Constraint("DistanceX", 36, 3, -1, 1, 67.339))
sketch1.addConstraint(Sketcher.Constraint("DistanceY", -1, 1, 19, 1, 157.759))
sketch1.addConstraint(Sketcher.Constraint("DistanceX", -1, 1, 27, 1, 157.759))
sketch1.addConstraint(Sketcher.Constraint("DistanceX", 24, 3, -1, 1, 289.9795))
sketch1.addConstraint(Sketcher.Constraint("DistanceX", 34, 3, -1, 1, 47.2262))
pad1 = doc.addObject("PartDesign::Pad", "Pad")
body.addObject(pad1)
pad1.Profile = sketch1
pad1.Length = 10
pad1.Reversed = True
doc.recompute()

fillet = doc.addObject("PartDesign::Fillet", "Fillet")
body.addObject(fillet)
fillet.Base = (pad1, edges_at(pad1, [
    (-231.117, 202.833, -5),
    (-259.862, 231.577, -5),
    (-202.833, 231.117, -5),
    (-231.577, 259.862, -5),
    (231.577, 259.862, -5),
    (259.862, 231.577, -5),
    (202.833, 231.117, -5),
    (231.117, 202.833, -5),
]))
fillet.Radius = 4

# Sketch on XY plane
sketch2 = doc.addObject("Sketcher::SketchObject", "Sketch001")
body.addObject(sketch2)
sketch2.AttachmentSupport = (doc.XY_Plane, [""])
sketch2.MapMode = "FlatFace"
sketch2.addGeometry(Part.LineSegment(Vector(345.0573, 9.5783, 0), Vector(269.9427, 147.2656, 0)), False)
sketch2.addGeometry(Part.ArcOfCircle(Part.Circle(Vector(0, 0, 0), Vector(0, 0, 1), 307.5), math.radians(0), math.radians(28.614406)), False)
sketch2.addGeometry(Part.ArcOfCircle(Part.Circle(Vector(327.5, 0, 0), Vector(0, 0, 1), 20), math.radians(180), math.radians(388.614461)), False)
sketch2.addConstraint(Sketcher.Constraint("Tangent", 0, 2, 1, 2))
sketch2.addConstraint(Sketcher.Constraint("Tangent", 1, 1, 2, 1))
sketch2.addConstraint(Sketcher.Constraint("Tangent", 2, 2, 0, 1))
sketch2.addConstraint(Sketcher.Constraint("Coincident", 1, 3, -1, 1))
sketch2.addConstraint(Sketcher.Constraint("PointOnObject", 2, 3, -1))
sketch2.addConstraint(Sketcher.Constraint("Radius", 2, 20.0))
sketch2.addConstraint(Sketcher.Constraint("Radius", 1, 307.5))
pad2 = doc.addObject("PartDesign::Pad", "Pad001")
body.addObject(pad2)
pad2.Profile = sketch2
pad2.Length = 5
pad2.Reversed = True

# Sketch on XY plane
sketch3 = doc.addObject("Sketcher::SketchObject", "Sketch002")
body.addObject(sketch3)
sketch3.AttachmentSupport = (doc.XY_Plane, [""])
sketch3.MapMode = "FlatFace"
sketch3.addGeometry(Part.Circle(Vector(0, 0, 0), Vector(0, 0, 1), 3), False)
sketch3.addGeometry(Part.Circle(Vector(327.5, 0, 0), Vector(0, 0, 1), 3), False)
sketch3.addConstraint(Sketcher.Constraint("Coincident", 0, 3, -1, 1))
sketch3.addConstraint(Sketcher.Constraint("Equal", 0, 1))
sketch3.addConstraint(Sketcher.Constraint("PointOnObject", 1, 3, -1))
sketch3.addConstraint(Sketcher.Constraint("Diameter", 0, 6.0))
sketch3.addConstraint(Sketcher.Constraint("DistanceX", -1, 1, 1, 3, 327.5))
doc.recompute()
hole = doc.addObject("PartDesign::Hole", "Hole")
body.addObject(hole)
hole.Profile = sketch3
hole.ThreadType = "None"
hole.Diameter = 6
hole.DepthType = "ThroughAll"

doc.recompute()
